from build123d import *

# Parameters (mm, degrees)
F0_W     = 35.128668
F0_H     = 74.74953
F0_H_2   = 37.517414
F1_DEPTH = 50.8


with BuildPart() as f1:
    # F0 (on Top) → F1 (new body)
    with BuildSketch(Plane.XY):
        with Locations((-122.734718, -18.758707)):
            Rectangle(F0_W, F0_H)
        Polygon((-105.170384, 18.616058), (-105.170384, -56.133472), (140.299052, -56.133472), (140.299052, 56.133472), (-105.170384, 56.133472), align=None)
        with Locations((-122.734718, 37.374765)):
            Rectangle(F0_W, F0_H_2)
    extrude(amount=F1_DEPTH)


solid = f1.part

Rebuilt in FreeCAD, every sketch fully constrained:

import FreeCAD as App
import Part
import Sketcher

V = App.Vector
Q = App.Units.Quantity


def add_polygon(sketch, points):
    """Adds a closed chain of lines whose ends are joined by coincident constraints."""
    first, n = sketch.GeometryCount, len(points)
    for a, b in zip(points, points[1:] + points[:1]):
        sketch.addGeometry(Part.LineSegment(App.Vector(*a, 0), App.Vector(*b, 0)), False)
    for i in range(n):
        sketch.addConstraint(Sketcher.Constraint("Coincident", first + i, 2, first + (i + 1) % n, 1))

doc = App.newDocument("Part")
body = doc.addObject("PartDesign::Body", "Body")

# Sketch on XY plane
sketch1 = body.newObject("Sketcher::SketchObject", "Sketch")
sketch1.AttachmentSupport = (doc.getObject("XY_Plane"), [""])
sketch1.MapMode = "FlatFace"
add_polygon(sketch1, [(-140, -56), (140, -56), (140, 56), (-140, 56)])  # lines 0-3
sketch1.addConstraint([
    Sketcher.Constraint("Horizontal", 0),
    Sketcher.Constraint("Vertical", 1),
    Sketcher.Constraint("Horizontal", 2),
    Sketcher.Constraint("Vertical", 3),
    Sketcher.Constraint("Symmetric", 0, 2, 2, 2, -1, 1),
    Sketcher.Constraint("DistanceX", 0, 1, 0, 2, Q("280.598104 mm")),
    Sketcher.Constraint("DistanceY", 1, 1, 1, 2, Q("112.266944 mm")),
])
pad1 = body.newObject("PartDesign::Pad", "Pad")
pad1.Profile = sketch1
pad1.Length = Q("2 in")

doc.recompute()
